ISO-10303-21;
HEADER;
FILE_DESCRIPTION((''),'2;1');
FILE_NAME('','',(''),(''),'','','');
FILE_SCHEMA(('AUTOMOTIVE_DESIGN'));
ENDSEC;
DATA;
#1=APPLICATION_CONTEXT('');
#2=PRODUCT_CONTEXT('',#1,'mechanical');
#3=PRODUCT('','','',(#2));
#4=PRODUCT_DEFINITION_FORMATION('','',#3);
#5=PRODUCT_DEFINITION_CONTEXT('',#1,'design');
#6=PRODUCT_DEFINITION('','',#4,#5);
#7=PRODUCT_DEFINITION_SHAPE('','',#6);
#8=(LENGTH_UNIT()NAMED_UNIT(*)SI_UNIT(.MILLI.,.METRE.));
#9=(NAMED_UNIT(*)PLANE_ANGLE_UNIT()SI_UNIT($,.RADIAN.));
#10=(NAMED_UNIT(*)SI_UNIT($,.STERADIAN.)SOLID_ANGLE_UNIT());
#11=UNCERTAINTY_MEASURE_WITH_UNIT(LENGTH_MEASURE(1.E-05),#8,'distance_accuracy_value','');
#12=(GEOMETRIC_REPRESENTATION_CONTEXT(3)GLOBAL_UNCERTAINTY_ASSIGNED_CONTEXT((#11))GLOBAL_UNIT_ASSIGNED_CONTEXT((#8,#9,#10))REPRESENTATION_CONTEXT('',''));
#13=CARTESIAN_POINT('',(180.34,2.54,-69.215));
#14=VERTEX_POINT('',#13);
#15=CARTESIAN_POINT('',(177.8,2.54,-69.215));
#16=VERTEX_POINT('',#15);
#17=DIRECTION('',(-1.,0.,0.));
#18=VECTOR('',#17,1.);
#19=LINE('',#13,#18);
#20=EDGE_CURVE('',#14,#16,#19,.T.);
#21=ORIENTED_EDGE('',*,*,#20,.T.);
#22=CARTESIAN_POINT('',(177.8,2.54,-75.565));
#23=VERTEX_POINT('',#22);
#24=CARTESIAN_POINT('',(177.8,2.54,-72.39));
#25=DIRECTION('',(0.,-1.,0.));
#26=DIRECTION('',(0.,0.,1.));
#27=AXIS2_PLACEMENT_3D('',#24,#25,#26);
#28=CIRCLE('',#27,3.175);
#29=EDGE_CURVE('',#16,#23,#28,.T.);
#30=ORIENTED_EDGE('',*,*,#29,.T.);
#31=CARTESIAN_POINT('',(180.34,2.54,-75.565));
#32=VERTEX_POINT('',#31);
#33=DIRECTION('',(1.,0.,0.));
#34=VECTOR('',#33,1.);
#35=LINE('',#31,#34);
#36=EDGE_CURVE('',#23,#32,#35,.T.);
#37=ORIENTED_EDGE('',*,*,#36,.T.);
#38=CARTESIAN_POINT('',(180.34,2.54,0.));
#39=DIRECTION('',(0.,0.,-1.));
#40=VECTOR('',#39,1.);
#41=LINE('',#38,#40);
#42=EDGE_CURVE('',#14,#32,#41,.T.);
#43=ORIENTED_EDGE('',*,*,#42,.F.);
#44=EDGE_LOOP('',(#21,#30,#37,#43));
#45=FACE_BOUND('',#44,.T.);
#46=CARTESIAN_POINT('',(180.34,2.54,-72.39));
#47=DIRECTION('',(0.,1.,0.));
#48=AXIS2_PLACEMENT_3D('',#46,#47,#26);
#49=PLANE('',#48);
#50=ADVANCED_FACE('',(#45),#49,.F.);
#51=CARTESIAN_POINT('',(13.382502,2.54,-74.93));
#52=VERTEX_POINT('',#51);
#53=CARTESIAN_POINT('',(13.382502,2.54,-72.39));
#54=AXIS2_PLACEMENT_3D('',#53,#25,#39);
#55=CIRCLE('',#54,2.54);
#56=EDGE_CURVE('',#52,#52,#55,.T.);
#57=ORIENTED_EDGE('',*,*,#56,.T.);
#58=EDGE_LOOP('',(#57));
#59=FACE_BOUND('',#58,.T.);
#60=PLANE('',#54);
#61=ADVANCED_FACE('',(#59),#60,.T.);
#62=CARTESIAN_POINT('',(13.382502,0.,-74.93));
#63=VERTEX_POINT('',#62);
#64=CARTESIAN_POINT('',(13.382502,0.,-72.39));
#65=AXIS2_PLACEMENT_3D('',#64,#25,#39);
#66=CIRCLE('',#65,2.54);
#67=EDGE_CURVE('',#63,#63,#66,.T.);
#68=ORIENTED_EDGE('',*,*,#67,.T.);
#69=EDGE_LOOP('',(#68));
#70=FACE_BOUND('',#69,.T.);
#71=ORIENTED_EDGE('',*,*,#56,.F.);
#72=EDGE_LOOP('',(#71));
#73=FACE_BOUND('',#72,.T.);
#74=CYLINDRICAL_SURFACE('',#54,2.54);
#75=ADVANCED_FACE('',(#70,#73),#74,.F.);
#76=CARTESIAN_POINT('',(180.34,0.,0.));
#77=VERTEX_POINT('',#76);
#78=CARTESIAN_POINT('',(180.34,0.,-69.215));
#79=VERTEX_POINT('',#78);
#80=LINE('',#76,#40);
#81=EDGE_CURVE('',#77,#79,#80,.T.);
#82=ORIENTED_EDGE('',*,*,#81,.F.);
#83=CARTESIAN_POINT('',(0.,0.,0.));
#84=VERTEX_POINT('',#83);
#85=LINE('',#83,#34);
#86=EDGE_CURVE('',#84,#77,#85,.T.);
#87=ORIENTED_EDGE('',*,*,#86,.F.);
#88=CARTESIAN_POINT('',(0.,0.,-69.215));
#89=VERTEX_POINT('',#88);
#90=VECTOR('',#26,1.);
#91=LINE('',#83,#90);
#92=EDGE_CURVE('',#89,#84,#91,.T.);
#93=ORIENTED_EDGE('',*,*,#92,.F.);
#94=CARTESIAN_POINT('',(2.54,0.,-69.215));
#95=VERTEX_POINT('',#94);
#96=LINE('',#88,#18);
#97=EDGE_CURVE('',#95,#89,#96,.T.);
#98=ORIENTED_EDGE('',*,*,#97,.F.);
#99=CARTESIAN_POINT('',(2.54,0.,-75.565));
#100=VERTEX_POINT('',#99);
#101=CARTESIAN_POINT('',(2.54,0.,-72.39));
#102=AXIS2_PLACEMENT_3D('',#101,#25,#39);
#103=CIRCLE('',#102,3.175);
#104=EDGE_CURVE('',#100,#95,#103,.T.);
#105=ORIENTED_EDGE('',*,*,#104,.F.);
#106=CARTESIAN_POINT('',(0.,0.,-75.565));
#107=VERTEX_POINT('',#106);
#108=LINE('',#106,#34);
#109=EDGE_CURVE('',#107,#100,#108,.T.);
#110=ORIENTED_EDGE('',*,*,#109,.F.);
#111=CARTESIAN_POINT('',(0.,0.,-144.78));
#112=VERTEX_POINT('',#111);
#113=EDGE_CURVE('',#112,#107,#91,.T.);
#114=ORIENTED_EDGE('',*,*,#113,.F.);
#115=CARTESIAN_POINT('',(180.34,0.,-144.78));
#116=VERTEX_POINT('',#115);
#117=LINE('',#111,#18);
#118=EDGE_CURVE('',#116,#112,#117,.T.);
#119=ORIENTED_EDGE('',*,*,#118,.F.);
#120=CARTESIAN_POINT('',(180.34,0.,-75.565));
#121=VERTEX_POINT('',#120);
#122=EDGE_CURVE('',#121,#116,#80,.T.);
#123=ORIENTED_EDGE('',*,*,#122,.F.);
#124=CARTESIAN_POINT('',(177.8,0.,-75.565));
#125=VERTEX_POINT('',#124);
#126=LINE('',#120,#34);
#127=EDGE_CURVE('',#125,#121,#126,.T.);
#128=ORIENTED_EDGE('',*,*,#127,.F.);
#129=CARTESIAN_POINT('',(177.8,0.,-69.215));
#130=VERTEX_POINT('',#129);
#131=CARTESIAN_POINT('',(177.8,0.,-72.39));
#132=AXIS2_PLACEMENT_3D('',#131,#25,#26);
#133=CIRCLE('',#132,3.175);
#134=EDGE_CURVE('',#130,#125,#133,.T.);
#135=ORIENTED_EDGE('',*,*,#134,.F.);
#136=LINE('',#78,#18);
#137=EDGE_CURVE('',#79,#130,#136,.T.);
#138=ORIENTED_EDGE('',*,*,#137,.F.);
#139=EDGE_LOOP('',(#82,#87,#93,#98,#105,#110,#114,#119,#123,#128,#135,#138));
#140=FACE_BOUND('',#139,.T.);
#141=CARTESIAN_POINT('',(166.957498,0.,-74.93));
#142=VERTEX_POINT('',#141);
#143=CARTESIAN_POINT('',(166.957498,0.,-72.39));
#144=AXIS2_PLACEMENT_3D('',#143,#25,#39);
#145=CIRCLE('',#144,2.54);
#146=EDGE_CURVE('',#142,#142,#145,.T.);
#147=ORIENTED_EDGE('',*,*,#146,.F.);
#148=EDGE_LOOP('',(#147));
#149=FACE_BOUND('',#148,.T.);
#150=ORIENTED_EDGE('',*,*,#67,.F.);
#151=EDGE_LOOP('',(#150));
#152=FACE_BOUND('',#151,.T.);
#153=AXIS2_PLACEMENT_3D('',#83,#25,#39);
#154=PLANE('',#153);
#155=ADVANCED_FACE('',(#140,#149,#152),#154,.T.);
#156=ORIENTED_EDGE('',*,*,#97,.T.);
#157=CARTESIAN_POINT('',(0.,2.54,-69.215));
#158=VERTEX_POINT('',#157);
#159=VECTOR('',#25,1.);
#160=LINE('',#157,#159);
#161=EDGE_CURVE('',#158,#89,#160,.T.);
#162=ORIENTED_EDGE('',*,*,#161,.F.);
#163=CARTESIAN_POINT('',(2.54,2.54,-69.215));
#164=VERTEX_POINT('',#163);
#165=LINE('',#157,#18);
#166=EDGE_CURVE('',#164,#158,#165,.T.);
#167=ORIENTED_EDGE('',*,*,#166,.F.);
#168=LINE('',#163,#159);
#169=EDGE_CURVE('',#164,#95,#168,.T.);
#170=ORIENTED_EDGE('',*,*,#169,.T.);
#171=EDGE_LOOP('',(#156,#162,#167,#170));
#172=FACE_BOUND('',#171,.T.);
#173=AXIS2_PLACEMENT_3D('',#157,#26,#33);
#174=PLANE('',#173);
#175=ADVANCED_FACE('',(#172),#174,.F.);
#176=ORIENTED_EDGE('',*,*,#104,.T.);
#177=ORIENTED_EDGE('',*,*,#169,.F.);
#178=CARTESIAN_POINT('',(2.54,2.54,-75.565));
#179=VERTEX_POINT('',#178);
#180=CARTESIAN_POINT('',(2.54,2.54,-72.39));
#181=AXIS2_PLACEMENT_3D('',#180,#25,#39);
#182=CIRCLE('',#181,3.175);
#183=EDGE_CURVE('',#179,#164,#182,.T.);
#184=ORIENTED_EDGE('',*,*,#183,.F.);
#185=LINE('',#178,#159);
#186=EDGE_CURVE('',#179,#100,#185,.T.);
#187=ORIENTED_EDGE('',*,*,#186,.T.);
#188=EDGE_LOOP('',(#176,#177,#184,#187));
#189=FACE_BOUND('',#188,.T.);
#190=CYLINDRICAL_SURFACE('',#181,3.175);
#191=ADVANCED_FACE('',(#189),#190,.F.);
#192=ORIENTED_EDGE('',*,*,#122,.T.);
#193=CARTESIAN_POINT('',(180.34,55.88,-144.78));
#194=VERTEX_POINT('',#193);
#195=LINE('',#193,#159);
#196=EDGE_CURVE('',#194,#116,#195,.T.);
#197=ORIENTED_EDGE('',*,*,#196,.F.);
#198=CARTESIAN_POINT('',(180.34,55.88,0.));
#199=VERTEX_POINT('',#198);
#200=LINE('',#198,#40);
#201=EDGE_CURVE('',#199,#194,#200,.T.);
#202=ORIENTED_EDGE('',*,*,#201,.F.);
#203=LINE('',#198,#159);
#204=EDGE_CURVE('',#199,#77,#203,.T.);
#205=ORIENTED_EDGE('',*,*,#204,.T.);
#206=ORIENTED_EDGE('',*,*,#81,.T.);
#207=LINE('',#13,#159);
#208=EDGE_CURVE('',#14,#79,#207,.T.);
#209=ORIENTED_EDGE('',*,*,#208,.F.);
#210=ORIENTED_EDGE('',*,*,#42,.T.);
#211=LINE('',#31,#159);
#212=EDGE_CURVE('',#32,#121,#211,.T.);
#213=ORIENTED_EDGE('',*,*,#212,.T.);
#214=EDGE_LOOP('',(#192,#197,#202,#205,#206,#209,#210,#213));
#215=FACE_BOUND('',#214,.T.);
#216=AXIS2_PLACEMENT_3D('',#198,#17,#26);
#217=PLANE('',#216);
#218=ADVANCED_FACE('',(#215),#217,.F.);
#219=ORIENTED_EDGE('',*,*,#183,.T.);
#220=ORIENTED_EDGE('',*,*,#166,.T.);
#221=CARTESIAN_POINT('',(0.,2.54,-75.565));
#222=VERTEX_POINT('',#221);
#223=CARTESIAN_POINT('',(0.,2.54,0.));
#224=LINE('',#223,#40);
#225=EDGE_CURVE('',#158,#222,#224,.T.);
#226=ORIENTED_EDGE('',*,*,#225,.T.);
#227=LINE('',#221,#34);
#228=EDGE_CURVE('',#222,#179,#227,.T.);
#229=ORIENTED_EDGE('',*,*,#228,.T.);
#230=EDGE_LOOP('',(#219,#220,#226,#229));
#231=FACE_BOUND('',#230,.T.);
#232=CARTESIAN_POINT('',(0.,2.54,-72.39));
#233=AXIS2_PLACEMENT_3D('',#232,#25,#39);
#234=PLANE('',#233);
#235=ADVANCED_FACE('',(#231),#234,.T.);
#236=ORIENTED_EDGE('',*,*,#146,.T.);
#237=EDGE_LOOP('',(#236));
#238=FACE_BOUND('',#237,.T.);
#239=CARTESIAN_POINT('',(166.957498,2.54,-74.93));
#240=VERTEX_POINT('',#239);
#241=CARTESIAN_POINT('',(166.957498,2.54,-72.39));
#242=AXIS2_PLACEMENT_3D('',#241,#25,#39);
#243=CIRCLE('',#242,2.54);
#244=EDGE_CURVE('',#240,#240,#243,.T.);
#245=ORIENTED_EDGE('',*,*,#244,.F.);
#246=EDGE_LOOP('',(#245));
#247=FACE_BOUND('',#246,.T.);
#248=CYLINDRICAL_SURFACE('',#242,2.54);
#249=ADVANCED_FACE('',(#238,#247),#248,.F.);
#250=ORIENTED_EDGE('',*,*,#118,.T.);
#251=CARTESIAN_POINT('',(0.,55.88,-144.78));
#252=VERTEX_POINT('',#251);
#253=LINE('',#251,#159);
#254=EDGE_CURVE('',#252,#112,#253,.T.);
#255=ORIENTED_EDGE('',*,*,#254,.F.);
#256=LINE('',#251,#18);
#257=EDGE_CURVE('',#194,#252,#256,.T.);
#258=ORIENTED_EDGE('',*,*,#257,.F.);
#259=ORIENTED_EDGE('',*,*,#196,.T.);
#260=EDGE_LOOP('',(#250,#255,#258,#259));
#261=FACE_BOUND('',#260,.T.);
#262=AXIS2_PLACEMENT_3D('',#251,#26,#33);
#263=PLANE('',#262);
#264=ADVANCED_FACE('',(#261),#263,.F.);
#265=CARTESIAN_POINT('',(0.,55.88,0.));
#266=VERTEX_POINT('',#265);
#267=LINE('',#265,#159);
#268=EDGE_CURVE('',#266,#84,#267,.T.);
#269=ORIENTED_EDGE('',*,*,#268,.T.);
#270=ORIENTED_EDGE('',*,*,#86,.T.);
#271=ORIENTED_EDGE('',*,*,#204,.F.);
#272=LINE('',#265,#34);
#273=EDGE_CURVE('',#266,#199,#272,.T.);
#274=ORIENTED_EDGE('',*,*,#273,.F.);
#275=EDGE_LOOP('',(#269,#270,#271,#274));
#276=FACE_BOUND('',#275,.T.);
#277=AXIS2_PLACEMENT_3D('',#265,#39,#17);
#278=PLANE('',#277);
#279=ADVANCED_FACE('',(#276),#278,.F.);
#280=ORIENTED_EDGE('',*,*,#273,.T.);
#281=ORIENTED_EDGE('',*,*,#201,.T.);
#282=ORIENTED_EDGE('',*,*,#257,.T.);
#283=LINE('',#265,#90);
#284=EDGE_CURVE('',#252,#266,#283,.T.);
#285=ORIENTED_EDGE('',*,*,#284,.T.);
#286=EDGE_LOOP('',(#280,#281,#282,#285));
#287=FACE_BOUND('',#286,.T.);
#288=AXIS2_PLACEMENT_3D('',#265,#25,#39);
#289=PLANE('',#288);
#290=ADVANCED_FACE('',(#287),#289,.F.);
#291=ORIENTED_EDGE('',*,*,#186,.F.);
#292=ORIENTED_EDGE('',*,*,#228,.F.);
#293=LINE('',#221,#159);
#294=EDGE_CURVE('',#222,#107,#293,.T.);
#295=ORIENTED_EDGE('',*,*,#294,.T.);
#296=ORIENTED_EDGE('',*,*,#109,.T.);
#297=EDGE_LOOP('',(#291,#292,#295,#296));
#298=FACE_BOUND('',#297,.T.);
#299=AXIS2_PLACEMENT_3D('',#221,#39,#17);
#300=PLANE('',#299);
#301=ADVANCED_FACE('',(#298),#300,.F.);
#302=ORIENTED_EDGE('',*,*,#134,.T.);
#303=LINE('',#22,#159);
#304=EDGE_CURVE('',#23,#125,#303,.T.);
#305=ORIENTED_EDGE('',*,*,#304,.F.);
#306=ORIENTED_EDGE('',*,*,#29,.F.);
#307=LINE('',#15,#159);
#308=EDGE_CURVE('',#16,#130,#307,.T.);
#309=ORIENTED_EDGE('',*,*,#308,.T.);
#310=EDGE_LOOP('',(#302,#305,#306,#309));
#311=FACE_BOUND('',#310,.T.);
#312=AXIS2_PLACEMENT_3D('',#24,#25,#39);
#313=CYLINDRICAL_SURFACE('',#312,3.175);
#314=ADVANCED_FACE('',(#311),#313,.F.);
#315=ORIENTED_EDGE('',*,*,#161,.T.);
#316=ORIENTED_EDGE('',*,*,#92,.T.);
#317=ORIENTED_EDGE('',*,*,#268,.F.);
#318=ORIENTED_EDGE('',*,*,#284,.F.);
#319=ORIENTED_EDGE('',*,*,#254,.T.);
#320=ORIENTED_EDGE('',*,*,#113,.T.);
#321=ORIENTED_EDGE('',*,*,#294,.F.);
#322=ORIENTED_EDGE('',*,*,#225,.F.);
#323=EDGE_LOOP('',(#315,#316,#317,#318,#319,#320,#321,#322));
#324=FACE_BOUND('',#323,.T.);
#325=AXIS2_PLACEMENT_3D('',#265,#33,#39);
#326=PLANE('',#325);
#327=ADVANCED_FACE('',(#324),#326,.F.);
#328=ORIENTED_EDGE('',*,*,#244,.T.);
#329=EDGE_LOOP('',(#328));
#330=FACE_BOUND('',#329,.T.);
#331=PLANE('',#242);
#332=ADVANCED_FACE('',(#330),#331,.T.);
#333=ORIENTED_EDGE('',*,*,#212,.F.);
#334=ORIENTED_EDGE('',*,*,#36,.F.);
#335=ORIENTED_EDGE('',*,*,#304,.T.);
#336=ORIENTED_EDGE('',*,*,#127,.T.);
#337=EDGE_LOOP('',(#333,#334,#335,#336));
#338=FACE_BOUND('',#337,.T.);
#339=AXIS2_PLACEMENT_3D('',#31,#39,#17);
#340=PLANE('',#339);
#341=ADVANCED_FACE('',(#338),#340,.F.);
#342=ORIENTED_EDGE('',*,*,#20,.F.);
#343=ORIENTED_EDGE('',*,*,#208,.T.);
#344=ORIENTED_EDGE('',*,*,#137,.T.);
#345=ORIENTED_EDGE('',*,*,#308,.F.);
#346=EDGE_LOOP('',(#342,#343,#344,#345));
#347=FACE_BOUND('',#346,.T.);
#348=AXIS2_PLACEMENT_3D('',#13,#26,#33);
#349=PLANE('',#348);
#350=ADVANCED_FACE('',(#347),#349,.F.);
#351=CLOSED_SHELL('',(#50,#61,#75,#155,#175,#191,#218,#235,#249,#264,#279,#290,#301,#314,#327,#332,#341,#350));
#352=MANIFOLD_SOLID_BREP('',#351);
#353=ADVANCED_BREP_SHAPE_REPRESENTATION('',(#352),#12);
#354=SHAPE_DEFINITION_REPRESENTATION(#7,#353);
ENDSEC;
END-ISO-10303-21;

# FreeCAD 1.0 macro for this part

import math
import FreeCAD as App
import Part
import Sketcher
from FreeCAD import Vector
Q = App.Units.Quantity

doc = App.newDocument("Part")
params = doc.addObject("Spreadsheet::Sheet", "Params")
for row, (alias, value) in enumerate([
    ("sketch1_width", "7.1 in"),
    ("sketch1_height", "5.7 in"),
    ("pad1_length", "2.2 in"),
    ("sketch2_width", "0.1 in"),
    ("sketch2_radius", "0.125 in"),
    ("pocket1_length", "0.1 in"),
    ("sketch3_diameter", "0.2 in"),
    ("pocket2_length", "0.1 in"),
], start=1):
    params.set(f"A{row}", alias)
    params.set(f"B{row}", "=" + value)
    params.setAlias(f"B{row}", alias)

body = doc.addObject("PartDesign::Body", "Body")

# Sketch on XZ plane
sketch1 = doc.addObject("Sketcher::SketchObject", "Sketch")
body.addObject(sketch1)
sketch1.AttachmentSupport = (doc.XZ_Plane, [""])
sketch1.MapMode = "FlatFace"
sketch1.addGeometry([
    Part.LineSegment(Vector(0, -145, 0), Vector(0, 0, 0)),
    Part.LineSegment(Vector(0, 0, 0), Vector(180, 0, 0)),
    Part.LineSegment(Vector(180, 0, 0), Vector(180, -145, 0)),
    Part.LineSegment(Vector(180, -145, 0), Vector(0, -145, 0)),
], False)
sketch1.addConstraint([
    Sketcher.Constraint("Coincident", 0, 2, 1, 1),
    Sketcher.Constraint("Coincident", 1, 2, 2, 1),
    Sketcher.Constraint("Coincident", 2, 2, 3, 1),
    Sketcher.Constraint("Coincident", 3, 2, 0, 1),
    Sketcher.Constraint("Vertical", 0),
    Sketcher.Constraint("Horizontal", 1),
    Sketcher.Constraint("Vertical", 2),
    Sketcher.Constraint("Horizontal", 3),
    Sketcher.Constraint("Coincident", 0, 2, -1, 1),
    Sketcher.Constraint("DistanceX", 1, 1, 1, 2, Q("7.1 in")),
    Sketcher.Constraint("DistanceY", 0, 1, 0, 2, Q("5.7 in")),
])
sketch1.setExpression("Constraints[9]", "Params.sketch1_width")
sketch1.setExpression("Constraints[10]", "Params.sketch1_height")
pad1 = doc.addObject("PartDesign::Pad", "Pad")
body.addObject(pad1)
pad1.Profile = sketch1
pad1.setExpression("Length", "Params.pad1_length")
pad1.Reversed = True

# Sketch on XZ plane
sketch2 = doc.addObject("Sketcher::SketchObject", "Sketch001")
body.addObject(sketch2)
sketch2.AttachmentSupport = (doc.XZ_Plane, [""])
sketch2.MapMode = "FlatFace"
sketch2.addGeometry([
    Part.LineSegment(Vector(2.5, -69.2, 0), Vector(0, -69.2, 0)),  # 0
    Part.ArcOfCircle(Part.Circle(Vector(0, -72.4, 0), Vector(0, 0, 1), 3.2), math.radians(90), math.radians(270)),  # 1
    Part.LineSegment(Vector(0, -75.6, 0), Vector(2.5, -75.6, 0)),  # 2
    Part.ArcOfCircle(Part.Circle(Vector(2.5, -72.4, 0), Vector(0, 0, 1), 3.2), math.radians(-90), math.radians(90)),  # 3
    Part.LineSegment(Vector(180.3, -69.2, 0), Vector(177.8, -69.2, 0)),  # 4
    Part.ArcOfCircle(Part.Circle(Vector(177.8, -72.4, 0), Vector(0, 0, 1), 3.2), math.radians(90), math.radians(270)),  # 5
    Part.LineSegment(Vector(177.8, -75.6, 0), Vector(180.3, -75.6, 0)),  # 6
    Part.ArcOfCircle(Part.Circle(Vector(180.3, -72.4, 0), Vector(0, 0, 1), 3.2), math.radians(-90), math.radians(90)),  # 7
], False)
sketch2.addConstraint([
    Sketcher.Constraint("Tangent", 0, 2, 1, 1),
    Sketcher.Constraint("Tangent", 1, 2, 2, 1),
    Sketcher.Constraint("Tangent", 2, 2, 3, 1),
    Sketcher.Constraint("Tangent", 3, 2, 0, 1),
    Sketcher.Constraint("Tangent", 4, 2, 5, 1),
    Sketcher.Constraint("Tangent", 5, 2, 6, 1),
    Sketcher.Constraint("Tangent", 6, 2, 7, 1),
    Sketcher.Constraint("Tangent", 7, 2, 4, 1),
    Sketcher.Constraint("Horizontal", 0),
    Sketcher.Constraint("Horizontal", 2),
    Sketcher.Constraint("Horizontal", 4),
    Sketcher.Constraint("Horizontal", 6),
    Sketcher.Constraint("Equal", 3, 5),
    Sketcher.Constraint("PointOnObject", 1, 3, -2),
    Sketcher.Constraint("Horizontal", 3, 3, 5, 3),
    Sketcher.Constraint("Equal", 2, 4),
    Sketcher.Constraint("DistanceX", 0, 2, 0, 1, Q("0.1 in")),
    Sketcher.Constraint("DistanceX", -1, 1, 5, 3, Q("7 in")),
    Sketcher.Constraint("Radius", 1, Q("0.125 in")),
    Sketcher.Constraint("DistanceY", 1, 3, -1, 1, Q("2.85 in")),
])
sketch2.setExpression("Constraints[16]", "Params.sketch2_width")
sketch2.setExpression("Constraints[18]", "Params.sketch2_radius")
pocket1 = doc.addObject("PartDesign::Pocket", "Pocket")
body.addObject(pocket1)
pocket1.Profile = sketch2
pocket1.setExpression("Length", "Params.pocket1_length")

# Sketch on XZ plane
sketch3 = doc.addObject("Sketcher::SketchObject", "Sketch002")
body.addObject(sketch3)
sketch3.AttachmentSupport = (doc.XZ_Plane, [""])
sketch3.MapMode = "FlatFace"
sketch3.addGeometry([
    Part.Circle(Vector(13.4, -72.4, 0), Vector(0, 0, 1), 2.5),
    Part.Circle(Vector(167, -72.4, 0), Vector(0, 0, 1), 2.5),
], False)
sketch3.addConstraint([
    Sketcher.Constraint("Equal", 0, 1),
    Sketcher.Constraint("Horizontal", 0, 3, 1, 3),
    Sketcher.Constraint("Diameter", 0, Q("0.2 in")),
    Sketcher.Constraint("DistanceY", 0, 3, -1, 1, Q("2.85 in")),
    Sketcher.Constraint("DistanceX", -1, 1, 0, 3, Q("13.382502 mm")),
    Sketcher.Constraint("DistanceX", -1, 1, 1, 3, Q("166.957498 mm")),
])
sketch3.setExpression("Constraints[2]", "Params.sketch3_diameter")
pocket2 = doc.addObject("PartDesign::Pocket", "Pocket001")
body.addObject(pocket2)
pocket2.Profile = sketch3
pocket2.setExpression("Length", "Params.pocket2_length")

doc.recompute()
